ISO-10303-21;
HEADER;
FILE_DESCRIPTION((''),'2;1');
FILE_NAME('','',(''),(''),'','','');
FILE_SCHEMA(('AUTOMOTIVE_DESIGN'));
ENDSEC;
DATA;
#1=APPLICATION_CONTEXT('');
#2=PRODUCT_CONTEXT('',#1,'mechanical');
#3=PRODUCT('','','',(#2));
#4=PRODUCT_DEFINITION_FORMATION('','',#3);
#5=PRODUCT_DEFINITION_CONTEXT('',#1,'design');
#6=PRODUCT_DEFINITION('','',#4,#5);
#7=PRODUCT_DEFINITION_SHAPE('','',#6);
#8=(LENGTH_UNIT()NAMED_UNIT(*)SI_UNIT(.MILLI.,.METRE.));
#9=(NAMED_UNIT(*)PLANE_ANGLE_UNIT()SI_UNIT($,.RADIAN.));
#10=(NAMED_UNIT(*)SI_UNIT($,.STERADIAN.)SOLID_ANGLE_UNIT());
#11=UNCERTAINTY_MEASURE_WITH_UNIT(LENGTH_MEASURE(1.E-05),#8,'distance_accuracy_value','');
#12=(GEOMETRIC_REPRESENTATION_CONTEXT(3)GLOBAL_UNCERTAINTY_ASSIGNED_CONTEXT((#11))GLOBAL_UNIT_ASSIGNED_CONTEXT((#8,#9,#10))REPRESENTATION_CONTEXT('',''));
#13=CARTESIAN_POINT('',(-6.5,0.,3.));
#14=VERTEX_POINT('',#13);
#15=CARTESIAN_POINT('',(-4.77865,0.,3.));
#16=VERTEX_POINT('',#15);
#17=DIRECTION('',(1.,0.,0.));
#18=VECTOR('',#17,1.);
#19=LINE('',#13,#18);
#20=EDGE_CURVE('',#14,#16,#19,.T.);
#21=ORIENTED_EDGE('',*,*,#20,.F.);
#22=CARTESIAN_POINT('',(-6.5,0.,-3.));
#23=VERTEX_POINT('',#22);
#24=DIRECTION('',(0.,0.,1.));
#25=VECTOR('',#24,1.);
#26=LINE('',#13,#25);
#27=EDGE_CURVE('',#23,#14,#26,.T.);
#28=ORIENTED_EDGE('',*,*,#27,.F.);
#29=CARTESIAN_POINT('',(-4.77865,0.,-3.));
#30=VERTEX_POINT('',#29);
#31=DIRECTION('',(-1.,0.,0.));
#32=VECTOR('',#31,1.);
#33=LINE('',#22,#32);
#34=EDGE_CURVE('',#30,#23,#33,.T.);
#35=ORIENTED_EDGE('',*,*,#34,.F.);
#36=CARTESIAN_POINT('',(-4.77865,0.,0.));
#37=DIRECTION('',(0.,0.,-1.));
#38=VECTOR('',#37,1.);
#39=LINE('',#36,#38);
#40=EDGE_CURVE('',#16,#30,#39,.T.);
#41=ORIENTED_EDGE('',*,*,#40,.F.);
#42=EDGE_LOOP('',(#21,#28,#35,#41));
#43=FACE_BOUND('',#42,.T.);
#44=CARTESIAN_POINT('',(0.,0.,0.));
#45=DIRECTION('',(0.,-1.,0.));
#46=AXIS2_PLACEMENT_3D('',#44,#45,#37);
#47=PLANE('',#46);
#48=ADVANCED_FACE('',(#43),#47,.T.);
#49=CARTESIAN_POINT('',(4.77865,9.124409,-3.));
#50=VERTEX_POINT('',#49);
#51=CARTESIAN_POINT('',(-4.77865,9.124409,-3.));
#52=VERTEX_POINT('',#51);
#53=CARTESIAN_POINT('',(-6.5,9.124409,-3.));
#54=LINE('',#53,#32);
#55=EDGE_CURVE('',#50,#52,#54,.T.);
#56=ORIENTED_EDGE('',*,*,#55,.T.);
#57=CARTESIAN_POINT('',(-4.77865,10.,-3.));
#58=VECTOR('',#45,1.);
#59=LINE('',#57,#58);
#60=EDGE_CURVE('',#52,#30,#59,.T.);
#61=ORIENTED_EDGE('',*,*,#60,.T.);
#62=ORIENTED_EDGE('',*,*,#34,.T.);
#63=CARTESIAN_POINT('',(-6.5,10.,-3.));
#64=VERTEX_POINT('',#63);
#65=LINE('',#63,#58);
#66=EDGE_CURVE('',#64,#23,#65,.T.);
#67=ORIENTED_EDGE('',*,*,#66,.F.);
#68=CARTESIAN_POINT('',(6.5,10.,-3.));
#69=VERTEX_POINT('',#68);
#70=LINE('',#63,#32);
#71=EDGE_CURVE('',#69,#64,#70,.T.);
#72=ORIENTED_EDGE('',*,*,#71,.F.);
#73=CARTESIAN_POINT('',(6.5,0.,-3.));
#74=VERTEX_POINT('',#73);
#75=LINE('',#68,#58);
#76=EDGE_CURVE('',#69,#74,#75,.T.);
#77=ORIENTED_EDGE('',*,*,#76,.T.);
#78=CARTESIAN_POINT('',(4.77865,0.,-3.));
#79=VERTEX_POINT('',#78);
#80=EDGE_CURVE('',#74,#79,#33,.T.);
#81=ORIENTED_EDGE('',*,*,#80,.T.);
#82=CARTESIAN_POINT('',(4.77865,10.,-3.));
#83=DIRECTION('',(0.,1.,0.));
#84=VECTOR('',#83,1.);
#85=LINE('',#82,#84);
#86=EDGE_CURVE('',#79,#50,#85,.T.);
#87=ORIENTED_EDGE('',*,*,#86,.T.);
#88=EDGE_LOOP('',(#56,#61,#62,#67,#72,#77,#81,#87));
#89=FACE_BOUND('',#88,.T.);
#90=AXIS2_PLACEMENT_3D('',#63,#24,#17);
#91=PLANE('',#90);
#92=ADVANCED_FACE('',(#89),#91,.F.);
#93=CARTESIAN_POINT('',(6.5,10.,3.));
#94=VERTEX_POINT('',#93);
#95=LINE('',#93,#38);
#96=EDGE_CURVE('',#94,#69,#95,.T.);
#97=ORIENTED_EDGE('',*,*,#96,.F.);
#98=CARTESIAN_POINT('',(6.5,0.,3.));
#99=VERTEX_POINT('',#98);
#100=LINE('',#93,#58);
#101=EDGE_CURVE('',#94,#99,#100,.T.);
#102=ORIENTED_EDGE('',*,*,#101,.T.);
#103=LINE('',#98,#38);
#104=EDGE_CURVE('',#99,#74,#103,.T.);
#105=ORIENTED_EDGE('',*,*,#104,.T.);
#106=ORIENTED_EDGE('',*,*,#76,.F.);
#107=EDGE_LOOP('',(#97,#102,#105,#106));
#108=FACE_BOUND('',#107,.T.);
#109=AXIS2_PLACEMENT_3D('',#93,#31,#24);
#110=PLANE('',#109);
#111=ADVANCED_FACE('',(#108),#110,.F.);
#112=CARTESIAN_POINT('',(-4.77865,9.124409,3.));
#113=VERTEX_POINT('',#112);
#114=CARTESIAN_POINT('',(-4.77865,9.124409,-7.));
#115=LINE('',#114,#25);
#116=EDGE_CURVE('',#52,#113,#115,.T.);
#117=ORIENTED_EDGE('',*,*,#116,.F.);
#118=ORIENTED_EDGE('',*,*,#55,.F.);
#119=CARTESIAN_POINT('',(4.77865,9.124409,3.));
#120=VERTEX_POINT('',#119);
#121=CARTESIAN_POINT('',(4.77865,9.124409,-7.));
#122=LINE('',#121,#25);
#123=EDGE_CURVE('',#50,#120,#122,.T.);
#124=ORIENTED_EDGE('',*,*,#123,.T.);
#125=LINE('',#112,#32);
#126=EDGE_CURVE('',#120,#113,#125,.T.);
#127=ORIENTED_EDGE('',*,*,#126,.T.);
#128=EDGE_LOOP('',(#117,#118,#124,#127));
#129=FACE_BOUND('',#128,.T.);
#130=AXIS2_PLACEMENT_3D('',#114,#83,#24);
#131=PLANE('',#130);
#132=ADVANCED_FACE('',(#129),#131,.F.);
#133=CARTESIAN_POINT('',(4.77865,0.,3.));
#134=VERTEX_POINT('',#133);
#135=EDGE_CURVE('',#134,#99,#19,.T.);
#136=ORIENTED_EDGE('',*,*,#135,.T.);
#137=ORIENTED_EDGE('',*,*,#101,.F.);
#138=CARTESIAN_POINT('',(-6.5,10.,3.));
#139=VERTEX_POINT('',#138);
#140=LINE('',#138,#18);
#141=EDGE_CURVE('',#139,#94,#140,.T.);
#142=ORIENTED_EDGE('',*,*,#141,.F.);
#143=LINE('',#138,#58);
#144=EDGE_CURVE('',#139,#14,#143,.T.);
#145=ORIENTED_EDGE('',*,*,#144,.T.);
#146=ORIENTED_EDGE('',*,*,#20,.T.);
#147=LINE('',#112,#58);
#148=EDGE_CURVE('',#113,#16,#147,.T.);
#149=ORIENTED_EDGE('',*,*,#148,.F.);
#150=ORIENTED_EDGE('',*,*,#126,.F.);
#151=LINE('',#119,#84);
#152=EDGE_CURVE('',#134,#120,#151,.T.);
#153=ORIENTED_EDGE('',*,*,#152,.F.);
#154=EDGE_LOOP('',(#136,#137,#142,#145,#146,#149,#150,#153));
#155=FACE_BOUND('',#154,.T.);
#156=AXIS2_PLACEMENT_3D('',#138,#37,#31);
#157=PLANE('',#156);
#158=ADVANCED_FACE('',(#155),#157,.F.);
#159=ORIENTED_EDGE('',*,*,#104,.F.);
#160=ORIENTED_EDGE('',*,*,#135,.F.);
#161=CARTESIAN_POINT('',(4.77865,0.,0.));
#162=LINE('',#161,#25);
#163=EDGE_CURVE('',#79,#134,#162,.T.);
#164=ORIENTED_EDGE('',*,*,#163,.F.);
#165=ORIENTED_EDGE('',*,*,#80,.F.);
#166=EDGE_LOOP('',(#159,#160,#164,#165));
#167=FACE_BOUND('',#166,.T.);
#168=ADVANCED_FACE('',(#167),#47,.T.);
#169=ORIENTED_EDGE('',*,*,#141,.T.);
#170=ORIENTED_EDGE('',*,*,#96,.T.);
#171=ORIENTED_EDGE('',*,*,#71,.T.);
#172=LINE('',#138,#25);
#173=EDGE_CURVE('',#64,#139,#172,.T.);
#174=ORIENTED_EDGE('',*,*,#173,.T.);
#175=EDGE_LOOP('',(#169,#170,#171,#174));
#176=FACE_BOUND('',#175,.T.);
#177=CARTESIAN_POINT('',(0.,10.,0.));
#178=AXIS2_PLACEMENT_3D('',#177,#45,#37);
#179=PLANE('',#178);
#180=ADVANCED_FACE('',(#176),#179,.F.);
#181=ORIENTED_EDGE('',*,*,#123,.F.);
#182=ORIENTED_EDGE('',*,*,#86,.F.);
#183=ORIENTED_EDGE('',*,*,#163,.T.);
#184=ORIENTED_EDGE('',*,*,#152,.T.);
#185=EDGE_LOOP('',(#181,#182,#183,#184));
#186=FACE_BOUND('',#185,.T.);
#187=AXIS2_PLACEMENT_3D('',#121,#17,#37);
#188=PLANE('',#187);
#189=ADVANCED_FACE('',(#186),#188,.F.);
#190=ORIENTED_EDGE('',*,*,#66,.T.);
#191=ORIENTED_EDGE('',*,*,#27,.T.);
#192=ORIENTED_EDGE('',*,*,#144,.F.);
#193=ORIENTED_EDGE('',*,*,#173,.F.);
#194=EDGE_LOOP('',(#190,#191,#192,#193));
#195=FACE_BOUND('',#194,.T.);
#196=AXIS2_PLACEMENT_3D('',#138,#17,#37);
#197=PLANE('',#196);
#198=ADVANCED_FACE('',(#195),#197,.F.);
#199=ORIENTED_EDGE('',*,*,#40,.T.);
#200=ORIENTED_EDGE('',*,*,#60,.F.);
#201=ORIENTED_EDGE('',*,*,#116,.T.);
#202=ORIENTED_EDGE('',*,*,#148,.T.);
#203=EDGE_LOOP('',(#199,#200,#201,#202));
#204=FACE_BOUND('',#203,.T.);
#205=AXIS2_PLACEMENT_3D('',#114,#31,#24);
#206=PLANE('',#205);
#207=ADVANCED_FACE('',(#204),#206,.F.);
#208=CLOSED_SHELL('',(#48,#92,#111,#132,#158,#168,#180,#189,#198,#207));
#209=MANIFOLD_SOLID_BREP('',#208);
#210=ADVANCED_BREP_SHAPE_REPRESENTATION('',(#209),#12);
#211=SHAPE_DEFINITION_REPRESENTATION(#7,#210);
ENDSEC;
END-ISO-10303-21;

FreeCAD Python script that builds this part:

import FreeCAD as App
import Part
import Sketcher
from FreeCAD import Vector

doc = App.newDocument("Part")
body = doc.addObject("PartDesign::Body", "Body")

sketch1 = doc.addObject("Sketcher::SketchObject", "Sketch")
body.addObject(sketch1)
sketch1.AttachmentSupport = (doc.XZ_Plane, [""])
sketch1.MapMode = "FlatFace"
sketch1.addGeometry([
    Part.LineSegment(Vector(-6, -3, 0), Vector(-6, 3, 0)),
    Part.LineSegment(Vector(-6, 3, 0), Vector(6, 3, 0)),
    Part.LineSegment(Vector(6, 3, 0), Vector(6, -3, 0)),
    Part.LineSegment(Vector(6, -3, 0), Vector(-6, -3, 0)),
], False)
sketch1.addConstraint([
    Sketcher.Constraint("Coincident", 0, 2, 1, 1),
    Sketcher.Constraint("Coincident", 1, 2, 2, 1),
    Sketcher.Constraint("Coincident", 2, 2, 3, 1),
    Sketcher.Constraint("Coincident", 3, 2, 0, 1),
    Sketcher.Constraint("Vertical", 0),
    Sketcher.Constraint("Horizontal", 1),
    Sketcher.Constraint("Vertical", 2),
    Sketcher.Constraint("Horizontal", 3),
    Sketcher.Constraint("Symmetric", 0, 2, 2, 2, -1, 1),
    Sketcher.Constraint("DistanceX", 1, 1, 1, 2, 13.0),
    Sketcher.Constraint("DistanceY", 0, 1, 0, 2, 6.0),
])
pad1 = doc.addObject("PartDesign::Pad", "Pad")
body.addObject(pad1)
pad1.Profile = sketch1
pad1.Length = 10
pad1.Reversed = True

sketch2 = doc.addObject("Sketcher::SketchObject", "Sketch001")
body.addObject(sketch2)
sketch2.AttachmentSupport = (doc.XY_Plane, [""])
sketch2.MapMode = "FlatFace"
sketch2.AttachmentOffset = App.Placement(Vector(0, 0, 3), App.Rotation())
sketch2.addGeometry([
    Part.LineSegment(Vector(-5, 9, 0), Vector(-5, 0, 0)),
    Part.LineSegment(Vector(-5, 0, 0), Vector(5, 0, 0)),
    Part.LineSegment(Vector(5, 0, 0), Vector(5, 9, 0)),
    Part.LineSegment(Vector(5, 9, 0), Vector(-5, 9, 0)),
], False)
sketch2.addConstraint([
    Sketcher.Constraint("Coincident", 0, 2, 1, 1),
    Sketcher.Constraint("Coincident", 1, 2, 2, 1),
    Sketcher.Constraint("Coincident", 2, 2, 3, 1),
    Sketcher.Constraint("Coincident", 3, 2, 0, 1),
    Sketcher.Constraint("Vertical", 0),
    Sketcher.Constraint("Horizontal", 1),
    Sketcher.Constraint("Vertical", 2),
    Sketcher.Constraint("Horizontal", 3),
    Sketcher.Constraint("Symmetric", 0, 2, 1, 2, -1, 1),
    Sketcher.Constraint("DistanceX", 1, 1, 1, 2, 9.5573),
    Sketcher.Constraint("DistanceY", 0, 2, 0, 1, 9.124409),
])
pocket1 = doc.addObject("PartDesign::Pocket", "Pocket")
body.addObject(pocket1)
pocket1.Profile = sketch2
pocket1.Length = 10

doc.recompute()
